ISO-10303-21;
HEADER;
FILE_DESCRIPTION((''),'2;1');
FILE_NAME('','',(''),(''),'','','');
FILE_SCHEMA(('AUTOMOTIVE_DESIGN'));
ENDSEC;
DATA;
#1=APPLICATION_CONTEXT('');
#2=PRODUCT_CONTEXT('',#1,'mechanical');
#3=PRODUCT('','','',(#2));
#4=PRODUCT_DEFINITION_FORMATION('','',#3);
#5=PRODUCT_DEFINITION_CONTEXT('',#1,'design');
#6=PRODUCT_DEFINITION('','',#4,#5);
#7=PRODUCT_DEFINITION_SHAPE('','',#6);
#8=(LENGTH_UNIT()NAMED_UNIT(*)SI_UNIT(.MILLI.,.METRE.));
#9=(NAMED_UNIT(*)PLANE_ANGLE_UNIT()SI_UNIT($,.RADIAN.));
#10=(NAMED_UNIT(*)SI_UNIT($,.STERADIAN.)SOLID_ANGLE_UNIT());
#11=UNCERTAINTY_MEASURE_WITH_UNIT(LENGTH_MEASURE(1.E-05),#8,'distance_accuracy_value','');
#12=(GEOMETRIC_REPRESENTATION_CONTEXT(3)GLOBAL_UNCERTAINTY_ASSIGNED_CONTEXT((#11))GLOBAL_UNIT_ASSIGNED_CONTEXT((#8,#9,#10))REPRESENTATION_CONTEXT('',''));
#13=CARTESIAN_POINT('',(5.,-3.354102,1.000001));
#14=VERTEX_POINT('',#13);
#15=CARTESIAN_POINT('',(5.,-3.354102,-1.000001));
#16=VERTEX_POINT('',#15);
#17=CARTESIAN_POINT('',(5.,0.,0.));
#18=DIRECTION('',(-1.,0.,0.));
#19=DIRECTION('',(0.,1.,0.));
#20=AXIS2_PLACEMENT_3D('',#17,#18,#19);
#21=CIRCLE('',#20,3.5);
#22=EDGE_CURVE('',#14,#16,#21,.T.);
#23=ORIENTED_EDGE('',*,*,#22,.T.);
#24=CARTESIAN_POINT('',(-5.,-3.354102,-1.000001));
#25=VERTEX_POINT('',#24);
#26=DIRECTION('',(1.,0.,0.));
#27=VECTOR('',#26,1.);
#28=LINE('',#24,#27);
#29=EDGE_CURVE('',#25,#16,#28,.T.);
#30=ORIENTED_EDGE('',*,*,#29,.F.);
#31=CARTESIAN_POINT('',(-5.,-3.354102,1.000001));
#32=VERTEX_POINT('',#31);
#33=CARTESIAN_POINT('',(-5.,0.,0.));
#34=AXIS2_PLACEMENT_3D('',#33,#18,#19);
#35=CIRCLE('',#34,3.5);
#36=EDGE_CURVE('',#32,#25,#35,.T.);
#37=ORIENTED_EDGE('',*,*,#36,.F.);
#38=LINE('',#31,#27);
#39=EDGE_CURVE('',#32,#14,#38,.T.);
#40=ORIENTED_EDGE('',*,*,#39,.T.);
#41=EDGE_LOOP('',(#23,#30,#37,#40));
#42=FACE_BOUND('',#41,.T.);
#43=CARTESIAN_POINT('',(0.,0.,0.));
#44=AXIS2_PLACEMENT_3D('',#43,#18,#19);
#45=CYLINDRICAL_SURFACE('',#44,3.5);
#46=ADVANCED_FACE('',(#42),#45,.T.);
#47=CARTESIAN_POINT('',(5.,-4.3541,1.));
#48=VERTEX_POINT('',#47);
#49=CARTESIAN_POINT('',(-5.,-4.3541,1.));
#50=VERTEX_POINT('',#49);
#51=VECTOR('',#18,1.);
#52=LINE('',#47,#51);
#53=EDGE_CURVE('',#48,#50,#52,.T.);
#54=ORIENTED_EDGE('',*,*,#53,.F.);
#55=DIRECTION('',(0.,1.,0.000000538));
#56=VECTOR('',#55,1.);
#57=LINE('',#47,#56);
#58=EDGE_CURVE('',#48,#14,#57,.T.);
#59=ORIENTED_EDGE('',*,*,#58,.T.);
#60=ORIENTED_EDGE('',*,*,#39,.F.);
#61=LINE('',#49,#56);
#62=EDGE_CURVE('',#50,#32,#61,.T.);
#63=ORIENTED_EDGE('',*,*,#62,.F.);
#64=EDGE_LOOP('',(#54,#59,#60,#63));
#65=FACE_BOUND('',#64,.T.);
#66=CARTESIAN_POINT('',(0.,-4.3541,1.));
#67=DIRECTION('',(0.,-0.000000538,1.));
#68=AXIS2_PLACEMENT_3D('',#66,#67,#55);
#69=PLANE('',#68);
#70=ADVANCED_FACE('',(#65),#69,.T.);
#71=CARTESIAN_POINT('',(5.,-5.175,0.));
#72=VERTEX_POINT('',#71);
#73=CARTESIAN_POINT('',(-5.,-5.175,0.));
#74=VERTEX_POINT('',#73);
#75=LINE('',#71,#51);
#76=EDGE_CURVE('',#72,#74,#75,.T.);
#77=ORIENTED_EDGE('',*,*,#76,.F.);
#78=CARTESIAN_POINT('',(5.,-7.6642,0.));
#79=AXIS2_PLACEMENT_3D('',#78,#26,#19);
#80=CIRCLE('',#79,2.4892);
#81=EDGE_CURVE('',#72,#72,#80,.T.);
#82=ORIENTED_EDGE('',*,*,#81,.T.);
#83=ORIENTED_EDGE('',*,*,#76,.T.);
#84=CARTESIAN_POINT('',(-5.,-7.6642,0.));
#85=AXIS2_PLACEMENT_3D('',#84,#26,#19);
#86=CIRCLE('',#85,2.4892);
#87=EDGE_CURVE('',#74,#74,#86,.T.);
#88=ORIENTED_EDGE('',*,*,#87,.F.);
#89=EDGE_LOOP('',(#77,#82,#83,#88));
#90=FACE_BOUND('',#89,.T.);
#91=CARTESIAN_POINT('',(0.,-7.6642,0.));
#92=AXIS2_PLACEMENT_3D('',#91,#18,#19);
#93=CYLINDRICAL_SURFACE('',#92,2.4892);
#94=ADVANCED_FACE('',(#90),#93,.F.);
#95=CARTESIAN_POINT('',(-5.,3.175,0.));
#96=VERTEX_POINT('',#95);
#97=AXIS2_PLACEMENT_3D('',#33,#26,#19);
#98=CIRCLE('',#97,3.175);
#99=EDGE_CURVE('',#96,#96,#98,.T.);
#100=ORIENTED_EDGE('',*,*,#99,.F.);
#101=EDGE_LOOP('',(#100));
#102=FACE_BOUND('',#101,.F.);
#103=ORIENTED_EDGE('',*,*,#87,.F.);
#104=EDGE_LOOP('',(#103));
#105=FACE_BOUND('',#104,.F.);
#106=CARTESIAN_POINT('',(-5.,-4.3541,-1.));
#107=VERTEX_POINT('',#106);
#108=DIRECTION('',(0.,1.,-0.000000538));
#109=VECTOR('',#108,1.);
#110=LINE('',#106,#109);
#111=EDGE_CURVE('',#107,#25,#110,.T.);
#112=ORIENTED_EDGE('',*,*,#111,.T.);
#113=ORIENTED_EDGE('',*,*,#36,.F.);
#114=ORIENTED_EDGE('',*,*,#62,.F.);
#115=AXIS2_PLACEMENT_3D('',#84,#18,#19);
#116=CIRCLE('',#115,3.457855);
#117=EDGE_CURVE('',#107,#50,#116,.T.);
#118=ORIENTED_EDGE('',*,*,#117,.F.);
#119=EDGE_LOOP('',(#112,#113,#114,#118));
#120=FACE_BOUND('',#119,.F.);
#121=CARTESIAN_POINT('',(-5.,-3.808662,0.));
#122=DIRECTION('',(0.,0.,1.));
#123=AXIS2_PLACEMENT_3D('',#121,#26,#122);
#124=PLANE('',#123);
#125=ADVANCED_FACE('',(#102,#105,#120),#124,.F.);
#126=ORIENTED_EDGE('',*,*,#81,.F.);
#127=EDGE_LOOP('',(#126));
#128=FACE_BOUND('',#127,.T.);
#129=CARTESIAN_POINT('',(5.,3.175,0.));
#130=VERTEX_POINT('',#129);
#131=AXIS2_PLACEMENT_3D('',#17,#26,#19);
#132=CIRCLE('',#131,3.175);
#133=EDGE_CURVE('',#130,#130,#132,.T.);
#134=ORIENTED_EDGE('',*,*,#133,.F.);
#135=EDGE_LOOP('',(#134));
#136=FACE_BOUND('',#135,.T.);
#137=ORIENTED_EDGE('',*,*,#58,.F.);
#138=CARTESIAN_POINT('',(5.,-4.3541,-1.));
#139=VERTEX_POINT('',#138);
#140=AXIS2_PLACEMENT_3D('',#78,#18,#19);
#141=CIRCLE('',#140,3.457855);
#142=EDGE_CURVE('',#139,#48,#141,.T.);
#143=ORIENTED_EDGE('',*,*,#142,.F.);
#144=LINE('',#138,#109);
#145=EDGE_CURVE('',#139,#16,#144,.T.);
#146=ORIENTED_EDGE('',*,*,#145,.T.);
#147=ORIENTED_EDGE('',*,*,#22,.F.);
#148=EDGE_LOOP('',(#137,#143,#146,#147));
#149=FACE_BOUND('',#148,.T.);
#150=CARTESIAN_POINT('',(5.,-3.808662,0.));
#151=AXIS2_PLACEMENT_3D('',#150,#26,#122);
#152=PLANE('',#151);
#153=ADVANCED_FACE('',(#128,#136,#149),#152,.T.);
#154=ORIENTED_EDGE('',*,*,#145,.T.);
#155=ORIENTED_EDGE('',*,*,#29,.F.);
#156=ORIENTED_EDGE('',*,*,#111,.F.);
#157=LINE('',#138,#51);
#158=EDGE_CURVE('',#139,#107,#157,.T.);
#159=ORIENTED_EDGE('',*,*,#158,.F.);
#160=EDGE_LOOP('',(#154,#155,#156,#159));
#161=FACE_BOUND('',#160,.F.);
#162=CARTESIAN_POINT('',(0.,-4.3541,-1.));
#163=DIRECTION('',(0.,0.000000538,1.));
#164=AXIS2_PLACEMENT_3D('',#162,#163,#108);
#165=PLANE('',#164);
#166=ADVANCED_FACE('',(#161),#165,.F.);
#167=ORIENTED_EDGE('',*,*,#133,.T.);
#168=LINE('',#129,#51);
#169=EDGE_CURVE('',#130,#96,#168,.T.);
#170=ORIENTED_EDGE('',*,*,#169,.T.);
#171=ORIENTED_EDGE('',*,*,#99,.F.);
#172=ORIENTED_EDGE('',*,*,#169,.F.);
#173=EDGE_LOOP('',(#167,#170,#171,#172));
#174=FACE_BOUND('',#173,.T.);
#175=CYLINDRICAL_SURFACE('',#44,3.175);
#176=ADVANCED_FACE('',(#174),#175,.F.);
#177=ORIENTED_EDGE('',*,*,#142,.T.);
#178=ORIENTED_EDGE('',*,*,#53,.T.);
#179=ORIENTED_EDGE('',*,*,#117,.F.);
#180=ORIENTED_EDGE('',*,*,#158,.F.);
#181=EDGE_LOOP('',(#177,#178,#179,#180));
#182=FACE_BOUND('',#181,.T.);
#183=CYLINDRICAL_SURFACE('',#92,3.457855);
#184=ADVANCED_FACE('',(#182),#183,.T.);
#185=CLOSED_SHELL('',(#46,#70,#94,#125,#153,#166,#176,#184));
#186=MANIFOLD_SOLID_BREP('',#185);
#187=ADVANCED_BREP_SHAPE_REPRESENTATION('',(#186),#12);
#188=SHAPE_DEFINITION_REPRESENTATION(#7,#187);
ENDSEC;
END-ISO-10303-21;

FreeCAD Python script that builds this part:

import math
import FreeCAD as App
import Part
import Sketcher

V = App.Vector

doc = App.newDocument("Part")
body = doc.addObject("PartDesign::Body", "Body")

# Sketch on YZ plane
sketch1 = body.newObject("Sketcher::SketchObject", "Sketch")
sketch1.AttachmentSupport = (doc.getObject("YZ_Plane"), [""])
sketch1.MapMode = "FlatFace"
sketch1.addGeometry(Part.ArcOfCircle(Part.Circle(V(-7.7, 0, 0), V(0, 0, 1), 3.5), math.radians(17), math.radians(343)), False)
sketch1.addGeometry(Part.LineSegment(V(-4.4, -1, 0), V(-3.4, -1, 0)), False)
sketch1.addGeometry(Part.ArcOfCircle(Part.Circle(V(0, 0, 0), V(0, 0, 1), 3.5), math.radians(-163), math.radians(163)), False)
sketch1.addGeometry(Part.LineSegment(V(-3.4, 1, 0), V(-4.4, 1, 0)), False)
sketch1.addGeometry(Part.Circle(V(-7.7, 0, 0), V(0, 0, 1), 2.5), False)
sketch1.addGeometry(Part.Circle(V(0, 0, 0), V(0, 0, 1), 3.2), False)
sketch1.addConstraint(Sketcher.Constraint("Coincident", 0, 2, 1, 1))
sketch1.addConstraint(Sketcher.Constraint("Coincident", 1, 2, 2, 1))
sketch1.addConstraint(Sketcher.Constraint("Coincident", 2, 2, 3, 1))
sketch1.addConstraint(Sketcher.Constraint("Coincident", 3, 2, 0, 1))
sketch1.addConstraint(Sketcher.Constraint("Horizontal", 1))
sketch1.addConstraint(Sketcher.Constraint("Horizontal", 3))
sketch1.addConstraint(Sketcher.Constraint("Coincident", 2, 3, -1, 1))
sketch1.addConstraint(Sketcher.Constraint("Coincident", 5, 3, -1, 1))
sketch1.addConstraint(Sketcher.Constraint("Coincident", 4, 3, 0, 3))
sketch1.addConstraint(Sketcher.Constraint("Symmetric", 0, 2, 3, 2, -1))
sketch1.addConstraint(Sketcher.Constraint("Radius", 2, 3.5))
sketch1.addConstraint(Sketcher.Constraint("Diameter", 5, 6.35))
sketch1.addConstraint(Sketcher.Constraint("DistanceX", 1, 1, 1, 2, 1.0))
sketch1.addConstraint(Sketcher.Constraint("DistanceY", 0, 2, -1, 1, 1.0))
sketch1.addConstraint(Sketcher.Constraint("Diameter", 4, 4.9784))
sketch1.addConstraint(Sketcher.Constraint("Radius", 0, 3.4579))
pad1 = body.newObject("PartDesign::Pad", "Pad")
pad1.Profile = sketch1
pad1.Length = 10
pad1.Midplane = True

doc.recompute()
